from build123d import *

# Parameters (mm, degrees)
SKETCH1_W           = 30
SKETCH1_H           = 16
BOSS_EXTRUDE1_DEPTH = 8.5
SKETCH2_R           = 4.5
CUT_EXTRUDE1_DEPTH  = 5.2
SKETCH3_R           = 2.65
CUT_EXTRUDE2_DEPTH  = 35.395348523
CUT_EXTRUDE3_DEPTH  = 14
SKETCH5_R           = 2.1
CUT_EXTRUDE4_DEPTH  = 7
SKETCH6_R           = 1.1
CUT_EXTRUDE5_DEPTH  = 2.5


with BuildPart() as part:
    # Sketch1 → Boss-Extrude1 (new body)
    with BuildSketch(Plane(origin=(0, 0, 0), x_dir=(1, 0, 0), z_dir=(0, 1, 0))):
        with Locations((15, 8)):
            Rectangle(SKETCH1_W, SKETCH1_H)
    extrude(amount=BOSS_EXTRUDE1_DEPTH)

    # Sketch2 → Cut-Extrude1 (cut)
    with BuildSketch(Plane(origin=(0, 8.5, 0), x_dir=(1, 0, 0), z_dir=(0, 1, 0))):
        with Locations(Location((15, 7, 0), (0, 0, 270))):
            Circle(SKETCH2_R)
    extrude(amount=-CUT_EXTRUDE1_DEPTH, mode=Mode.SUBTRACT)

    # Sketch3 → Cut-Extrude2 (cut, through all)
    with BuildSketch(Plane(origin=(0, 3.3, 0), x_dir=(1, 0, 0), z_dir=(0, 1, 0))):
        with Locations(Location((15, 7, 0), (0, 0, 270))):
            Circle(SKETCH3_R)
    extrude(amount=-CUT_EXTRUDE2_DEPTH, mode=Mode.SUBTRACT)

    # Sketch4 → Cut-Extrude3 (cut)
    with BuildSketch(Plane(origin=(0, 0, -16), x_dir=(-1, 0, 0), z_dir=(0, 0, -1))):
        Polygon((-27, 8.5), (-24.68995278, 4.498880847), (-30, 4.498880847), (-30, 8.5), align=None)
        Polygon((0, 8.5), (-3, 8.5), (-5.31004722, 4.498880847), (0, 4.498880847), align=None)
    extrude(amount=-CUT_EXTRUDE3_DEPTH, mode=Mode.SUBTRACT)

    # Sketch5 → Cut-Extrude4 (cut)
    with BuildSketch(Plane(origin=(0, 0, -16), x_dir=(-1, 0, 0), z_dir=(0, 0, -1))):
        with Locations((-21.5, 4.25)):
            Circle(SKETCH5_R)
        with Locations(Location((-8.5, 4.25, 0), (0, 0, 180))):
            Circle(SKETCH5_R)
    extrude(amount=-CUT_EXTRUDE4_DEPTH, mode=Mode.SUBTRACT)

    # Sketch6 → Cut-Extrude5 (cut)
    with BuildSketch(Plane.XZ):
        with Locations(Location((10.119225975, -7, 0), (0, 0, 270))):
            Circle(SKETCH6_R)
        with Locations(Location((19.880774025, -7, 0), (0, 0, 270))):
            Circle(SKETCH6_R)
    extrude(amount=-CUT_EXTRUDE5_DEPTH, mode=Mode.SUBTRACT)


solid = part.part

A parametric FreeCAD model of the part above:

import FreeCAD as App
import Part
import Sketcher

V = App.Vector
Q = App.Units.Quantity


def add_polygon(sketch, points):
    """Adds a closed chain of lines whose ends are joined by coincident constraints."""
    first, n = sketch.GeometryCount, len(points)
    for a, b in zip(points, points[1:] + points[:1]):
        sketch.addGeometry(Part.LineSegment(App.Vector(*a, 0), App.Vector(*b, 0)), False)
    for i in range(n):
        sketch.addConstraint(Sketcher.Constraint("Coincident", first + i, 2, first + (i + 1) % n, 1))

doc = App.newDocument("Part")
body = doc.addObject("PartDesign::Body", "Body")

# Sketch on XZ plane
sketch1 = doc.addObject("Sketcher::SketchObject", "Sketch")
body.addObject(sketch1)
sketch1.AttachmentSupport = (doc.XZ_Plane, [""])
sketch1.MapMode = "FlatFace"
add_polygon(sketch1, [(0, -16), (0, 0), (30, 0), (30, -16)])  # lines 0-3
sketch1.addConstraint([
    Sketcher.Constraint("Vertical", 0),
    Sketcher.Constraint("Horizontal", 1),
    Sketcher.Constraint("Vertical", 2),
    Sketcher.Constraint("Horizontal", 3),
    Sketcher.Constraint("Coincident", 0, 2, -1, 1),
    Sketcher.Constraint("DistanceX", 1, 1, 1, 2, Q("30 mm")),
    Sketcher.Constraint("DistanceY", 0, 1, 0, 2, Q("16 mm")),
])
pad1 = doc.addObject("PartDesign::Pad", "Pad")
body.addObject(pad1)
pad1.Profile = sketch1
pad1.Length = 8.5
pad1.Reversed = True

# Sketch on XZ plane
sketch2 = doc.addObject("Sketcher::SketchObject", "Sketch001")
body.addObject(sketch2)
sketch2.AttachmentSupport = (doc.XZ_Plane, [""])
sketch2.MapMode = "FlatFace"
sketch2.AttachmentOffset = App.Placement(V(0, 0, -8.5), App.Rotation())
sketch2.addGeometry(Part.Circle(V(15, -7, 0), V(0, 0, 1), 4.5), False)
sketch2.addConstraint([
    Sketcher.Constraint("Diameter", 0, Q("9 mm")),
    Sketcher.Constraint("DistanceX", -1, 1, 0, 3, Q("15 mm")),
    Sketcher.Constraint("DistanceY", 0, 3, -1, 1, Q("7 mm")),
])
pocket1 = doc.addObject("PartDesign::Pocket", "Pocket")
body.addObject(pocket1)
pocket1.Profile = sketch2
pocket1.Length = 5.2
pocket1.Reversed = True

# Sketch on XZ plane
sketch3 = doc.addObject("Sketcher::SketchObject", "Sketch002")
body.addObject(sketch3)
sketch3.AttachmentSupport = (doc.XZ_Plane, [""])
sketch3.MapMode = "FlatFace"
sketch3.AttachmentOffset = App.Placement(V(0, 0, -3.3), App.Rotation())
sketch3.addGeometry(Part.Circle(V(15, -7, 0), V(0, 0, 1), 2.6), False)
sketch3.addConstraint([
    Sketcher.Constraint("Diameter", 0, Q("5.3 mm")),
    Sketcher.Constraint("DistanceX", -1, 1, 0, 3, Q("15 mm")),
    Sketcher.Constraint("DistanceY", 0, 3, -1, 1, Q("7 mm")),
])
pocket2 = doc.addObject("PartDesign::Pocket", "Pocket001")
body.addObject(pocket2)
pocket2.Profile = sketch3
pocket2.Type = "ThroughAll"
pocket2.Reversed = True

# Sketch on XY plane
sketch4 = doc.addObject("Sketcher::SketchObject", "Sketch003")
body.addObject(sketch4)
sketch4.AttachmentSupport = (doc.XY_Plane, [""])
sketch4.MapMode = "FlatFace"
sketch4.AttachmentOffset = App.Placement(V(0, 0, -16), App.Rotation())
add_polygon(sketch4, [(24.7, 4.5), (27, 8.5), (30, 8.5), (30, 4.5)])  # lines 0-3
add_polygon(sketch4, [(0, 8.5), (3, 8.5), (5.3, 4.5), (0, 4.5)])  # lines 4-7
sketch4.addConstraint([
    Sketcher.Constraint("Horizontal", 1),
    Sketcher.Constraint("Vertical", 2),
    Sketcher.Constraint("Horizontal", 3),
    Sketcher.Constraint("Horizontal", 4),
    Sketcher.Constraint("Horizontal", 6),
    Sketcher.Constraint("Vertical", 7),
    Sketcher.Constraint("PointOnObject", 6, 2, -2),
    Sketcher.Constraint("Horizontal", 1, 2, 4, 2),
    Sketcher.Constraint("Horizontal", 3, 2, 5, 2),
    Sketcher.Constraint("Equal", 1, 4),
    Sketcher.Constraint("Equal", 3, 6),
    Sketcher.Constraint("DistanceX", 1, 1, 1, 2, Q("3 mm")),
    Sketcher.Constraint("Angle", 0, Q("60 deg")),
    Sketcher.Constraint("DistanceX", -1, 1, 0, 2, Q("27 mm")),
    Sketcher.Constraint("DistanceY", -1, 1, 0, 2, Q("8.5 mm")),
    Sketcher.Constraint("DistanceY", 2, 2, 2, 1, Q("4.001119 mm")),
])
pocket3 = doc.addObject("PartDesign::Pocket", "Pocket002")
body.addObject(pocket3)
pocket3.Profile = sketch4
pocket3.Length = 14
pocket3.Reversed = True

# Sketch on XY plane
sketch5 = doc.addObject("Sketcher::SketchObject", "Sketch004")
body.addObject(sketch5)
sketch5.AttachmentSupport = (doc.XY_Plane, [""])
sketch5.MapMode = "FlatFace"
sketch5.AttachmentOffset = App.Placement(V(0, 0, -16), App.Rotation())
sketch5.addGeometry([
    Part.Circle(V(21.5, 4.2, 0), V(0, 0, 1), 2.1),
    Part.Circle(V(8.5, 4.2, 0), V(0, 0, 1), 2.1),
], False)
sketch5.addConstraint([
    Sketcher.Constraint("Equal", 0, 1),
    Sketcher.Constraint("Horizontal", 0, 3, 1, 3),
    Sketcher.Constraint("Diameter", 0, Q("4.2 mm")),
    Sketcher.Constraint("DistanceX", 1, 3, 0, 3, Q("13 mm")),
    Sketcher.Constraint("DistanceX", -1, 1, 0, 3, Q("21.5 mm")),
    Sketcher.Constraint("DistanceY", -1, 1, 0, 3, Q("4.25 mm")),
])
pocket4 = doc.addObject("PartDesign::Pocket", "Pocket003")
body.addObject(pocket4)
pocket4.Profile = sketch5
pocket4.Length = 7
pocket4.Reversed = True

# Sketch on XZ plane
sketch6 = doc.addObject("Sketcher::SketchObject", "Sketch005")
body.addObject(sketch6)
sketch6.AttachmentSupport = (doc.XZ_Plane, [""])
sketch6.MapMode = "FlatFace"
sketch6.addGeometry([
    Part.Circle(V(10.1, -7, 0), V(0, 0, 1), 1.1),
    Part.Circle(V(19.9, -7, 0), V(0, 0, 1), 1.1),
], False)
sketch6.addConstraint([
    Sketcher.Constraint("Equal", 0, 1),
    Sketcher.Constraint("Horizontal", 0, 3, 1, 3),
    Sketcher.Constraint("Diameter", 0, Q("2.2 mm")),
    Sketcher.Constraint("DistanceY", 0, 3, -1, 1, Q("7 mm")),
    Sketcher.Constraint("DistanceX", 0, 3, 1, 3, Q("9.761548 mm")),
    Sketcher.Constraint("DistanceX", -1, 1, 0, 3, Q("10.119226 mm")),
])
pocket5 = doc.addObject("PartDesign::Pocket", "Pocket004")
body.addObject(pocket5)
pocket5.Profile = sketch6
pocket5.Length = 2.5

doc.recompute()
